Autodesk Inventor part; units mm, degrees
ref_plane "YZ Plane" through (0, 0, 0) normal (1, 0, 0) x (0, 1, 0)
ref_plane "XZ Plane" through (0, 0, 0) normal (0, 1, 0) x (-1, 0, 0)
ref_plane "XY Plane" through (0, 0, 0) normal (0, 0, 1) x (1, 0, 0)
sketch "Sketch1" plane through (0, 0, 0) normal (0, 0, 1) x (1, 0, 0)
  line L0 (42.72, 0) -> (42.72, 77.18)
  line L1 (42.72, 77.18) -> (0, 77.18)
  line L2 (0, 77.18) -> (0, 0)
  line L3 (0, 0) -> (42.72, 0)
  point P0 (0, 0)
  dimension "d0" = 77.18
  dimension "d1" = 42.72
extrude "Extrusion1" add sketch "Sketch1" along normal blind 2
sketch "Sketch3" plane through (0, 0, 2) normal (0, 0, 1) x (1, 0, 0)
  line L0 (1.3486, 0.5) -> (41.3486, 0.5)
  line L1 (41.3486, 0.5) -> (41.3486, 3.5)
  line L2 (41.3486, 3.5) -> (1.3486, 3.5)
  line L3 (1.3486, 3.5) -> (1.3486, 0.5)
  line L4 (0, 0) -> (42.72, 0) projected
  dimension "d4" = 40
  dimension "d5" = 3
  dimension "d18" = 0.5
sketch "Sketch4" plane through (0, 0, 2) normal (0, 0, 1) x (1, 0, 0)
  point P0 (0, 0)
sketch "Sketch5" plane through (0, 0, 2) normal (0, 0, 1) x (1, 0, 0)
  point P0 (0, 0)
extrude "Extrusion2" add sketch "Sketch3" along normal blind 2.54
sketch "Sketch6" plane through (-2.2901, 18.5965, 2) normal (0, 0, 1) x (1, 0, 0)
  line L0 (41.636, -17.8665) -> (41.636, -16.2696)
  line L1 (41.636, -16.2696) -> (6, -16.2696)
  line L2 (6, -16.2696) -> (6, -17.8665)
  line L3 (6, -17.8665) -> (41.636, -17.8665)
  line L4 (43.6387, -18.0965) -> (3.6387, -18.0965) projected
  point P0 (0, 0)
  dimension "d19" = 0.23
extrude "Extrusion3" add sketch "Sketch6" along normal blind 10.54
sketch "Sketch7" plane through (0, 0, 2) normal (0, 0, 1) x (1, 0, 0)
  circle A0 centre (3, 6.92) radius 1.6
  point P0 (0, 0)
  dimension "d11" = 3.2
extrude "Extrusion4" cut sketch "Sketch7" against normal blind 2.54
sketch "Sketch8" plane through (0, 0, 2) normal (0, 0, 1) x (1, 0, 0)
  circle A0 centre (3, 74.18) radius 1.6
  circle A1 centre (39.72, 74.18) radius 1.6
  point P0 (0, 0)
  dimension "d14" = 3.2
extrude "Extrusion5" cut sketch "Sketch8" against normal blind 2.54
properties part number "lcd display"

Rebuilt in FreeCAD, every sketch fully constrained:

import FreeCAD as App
import Part
import Sketcher

doc = App.newDocument("Part")
body = doc.addObject("PartDesign::Body", "Body")

# Sketch on XY plane
sketch1 = body.newObject("Sketcher::SketchObject", "Sketch")
sketch1.AttachmentSupport = (doc.getObject("XY_Plane"), [""])
sketch1.MapMode = "FlatFace"
sketch1.addGeometry(Part.LineSegment(App.Vector(0, 0, 0), App.Vector(43, 0, 0)), False)
sketch1.addGeometry(Part.LineSegment(App.Vector(43, 0, 0), App.Vector(43, 77, 0)), False)
sketch1.addGeometry(Part.LineSegment(App.Vector(43, 77, 0), App.Vector(0, 77, 0)), False)
sketch1.addGeometry(Part.LineSegment(App.Vector(0, 77, 0), App.Vector(0, 0, 0)), False)
sketch1.addConstraint(Sketcher.Constraint("Coincident", 0, 2, 1, 1))
sketch1.addConstraint(Sketcher.Constraint("Coincident", 1, 2, 2, 1))
sketch1.addConstraint(Sketcher.Constraint("Coincident", 2, 2, 3, 1))
sketch1.addConstraint(Sketcher.Constraint("Coincident", 3, 2, 0, 1))
sketch1.addConstraint(Sketcher.Constraint("Horizontal", 0))
sketch1.addConstraint(Sketcher.Constraint("Vertical", 1))
sketch1.addConstraint(Sketcher.Constraint("Horizontal", 2))
sketch1.addConstraint(Sketcher.Constraint("Vertical", 3))
sketch1.addConstraint(Sketcher.Constraint("Coincident", 3, 2, -1, 1))
sketch1.addConstraint(Sketcher.Constraint("DistanceX", 0, 1, 0, 2, 42.72))
sketch1.addConstraint(Sketcher.Constraint("DistanceY", 1, 1, 1, 2, 77.18))
pad1 = body.newObject("PartDesign::Pad", "Pad")
pad1.Profile = sketch1
pad1.Length = 2

# Sketch on XY plane
sketch2 = body.newObject("Sketcher::SketchObject", "Sketch001")
sketch2.AttachmentSupport = (doc.getObject("XY_Plane"), [""])
sketch2.MapMode = "FlatFace"
sketch2.AttachmentOffset = App.Placement(App.Vector(0, 0, 2), App.Rotation())
sketch2.addGeometry(Part.LineSegment(App.Vector(1.3, 3.5, 0), App.Vector(1.3, 0.5, 0)), False)
sketch2.addGeometry(Part.LineSegment(App.Vector(1.3, 0.5, 0), App.Vector(41.3, 0.5, 0)), False)
sketch2.addGeometry(Part.LineSegment(App.Vector(41.3, 0.5, 0), App.Vector(41.3, 3.5, 0)), False)
sketch2.addGeometry(Part.LineSegment(App.Vector(41.3, 3.5, 0), App.Vector(1.3, 3.5, 0)), False)
sketch2.addConstraint(Sketcher.Constraint("Coincident", 0, 2, 1, 1))
sketch2.addConstraint(Sketcher.Constraint("Coincident", 1, 2, 2, 1))
sketch2.addConstraint(Sketcher.Constraint("Coincident", 2, 2, 3, 1))
sketch2.addConstraint(Sketcher.Constraint("Coincident", 3, 2, 0, 1))
sketch2.addConstraint(Sketcher.Constraint("Vertical", 0))
sketch2.addConstraint(Sketcher.Constraint("Horizontal", 1))
sketch2.addConstraint(Sketcher.Constraint("Vertical", 2))
sketch2.addConstraint(Sketcher.Constraint("Horizontal", 3))
sketch2.addConstraint(Sketcher.Constraint("DistanceX", 1, 1, 1, 2, 40.0))
sketch2.addConstraint(Sketcher.Constraint("DistanceY", 0, 2, 0, 1, 3.0))
sketch2.addConstraint(Sketcher.Constraint("DistanceY", -1, 1, 0, 2, 0.5))
sketch2.addConstraint(Sketcher.Constraint("DistanceX", -1, 1, 0, 2, 1.3486))
pad2 = body.newObject("PartDesign::Pad", "Pad001")
pad2.Profile = sketch2
pad2.Length = 2.54

# Sketch on XY plane
sketch3 = body.newObject("Sketcher::SketchObject", "Sketch002")
sketch3.AttachmentSupport = (doc.getObject("XY_Plane"), [""])
sketch3.MapMode = "FlatFace"
sketch3.AttachmentOffset = App.Placement(App.Vector(0, 0, 2), App.Rotation())
sketch3.addGeometry(Part.LineSegment(App.Vector(3.7, 0.7, 0), App.Vector(39.3, 0.7, 0)), False)
sketch3.addGeometry(Part.LineSegment(App.Vector(39.3, 0.7, 0), App.Vector(39.3, 2.3, 0)), False)
sketch3.addGeometry(Part.LineSegment(App.Vector(39.3, 2.3, 0), App.Vector(3.7, 2.3, 0)), False)
sketch3.addGeometry(Part.LineSegment(App.Vector(3.7, 2.3, 0), App.Vector(3.7, 0.7, 0)), False)
sketch3.addConstraint(Sketcher.Constraint("Coincident", 0, 2, 1, 1))
sketch3.addConstraint(Sketcher.Constraint("Coincident", 1, 2, 2, 1))
sketch3.addConstraint(Sketcher.Constraint("Coincident", 2, 2, 3, 1))
sketch3.addConstraint(Sketcher.Constraint("Coincident", 3, 2, 0, 1))
sketch3.addConstraint(Sketcher.Constraint("Horizontal", 0))
sketch3.addConstraint(Sketcher.Constraint("Vertical", 1))
sketch3.addConstraint(Sketcher.Constraint("Horizontal", 2))
sketch3.addConstraint(Sketcher.Constraint("Vertical", 3))
sketch3.addConstraint(Sketcher.Constraint("DistanceX", 0, 1, 0, 2, 35.636))
sketch3.addConstraint(Sketcher.Constraint("DistanceY", 1, 1, 1, 2, 1.597))
sketch3.addConstraint(Sketcher.Constraint("DistanceY", -1, 1, 0, 2, 0.73))
sketch3.addConstraint(Sketcher.Constraint("DistanceX", -1, 1, 2, 2, 3.71))
pad3 = body.newObject("PartDesign::Pad", "Pad002")
pad3.Profile = sketch3
pad3.Length = 10.54

# Sketch on XY plane
sketch4 = body.newObject("Sketcher::SketchObject", "Sketch003")
sketch4.AttachmentSupport = (doc.getObject("XY_Plane"), [""])
sketch4.MapMode = "FlatFace"
sketch4.AttachmentOffset = App.Placement(App.Vector(0, 0, 2), App.Rotation())
sketch4.addGeometry(Part.Circle(App.Vector(3, 6.9, 0), App.Vector(0, 0, 1), 1.6), False)
sketch4.addConstraint(Sketcher.Constraint("Diameter", 0, 3.2))
sketch4.addConstraint(Sketcher.Constraint("DistanceX", -1, 1, 0, 3, 3.0))
sketch4.addConstraint(Sketcher.Constraint("DistanceY", -1, 1, 0, 3, 6.92))
pocket1 = body.newObject("PartDesign::Pocket", "Pocket")
pocket1.Profile = sketch4
pocket1.Length = 2.54

# Sketch on XY plane
sketch5 = body.newObject("Sketcher::SketchObject", "Sketch004")
sketch5.AttachmentSupport = (doc.getObject("XY_Plane"), [""])
sketch5.MapMode = "FlatFace"
sketch5.AttachmentOffset = App.Placement(App.Vector(0, 0, 2), App.Rotation())
sketch5.addGeometry(Part.Circle(App.Vector(3, 74.2, 0), App.Vector(0, 0, 1), 1.6), False)
sketch5.addGeometry(Part.Circle(App.Vector(39.7, 74.2, 0), App.Vector(0, 0, 1), 1.6), False)
sketch5.addConstraint(Sketcher.Constraint("Equal", 0, 1))
sketch5.addConstraint(Sketcher.Constraint("Horizontal", 0, 3, 1, 3))
sketch5.addConstraint(Sketcher.Constraint("Diameter", 0, 3.2))
sketch5.addConstraint(Sketcher.Constraint("DistanceX", -1, 1, 0, 3, 3.0))
sketch5.addConstraint(Sketcher.Constraint("DistanceY", -1, 1, 0, 3, 74.18))
sketch5.addConstraint(Sketcher.Constraint("DistanceX", -1, 1, 1, 3, 39.72))
pocket2 = body.newObject("PartDesign::Pocket", "Pocket001")
pocket2.Profile = sketch5
pocket2.Length = 2.54

doc.recompute()
